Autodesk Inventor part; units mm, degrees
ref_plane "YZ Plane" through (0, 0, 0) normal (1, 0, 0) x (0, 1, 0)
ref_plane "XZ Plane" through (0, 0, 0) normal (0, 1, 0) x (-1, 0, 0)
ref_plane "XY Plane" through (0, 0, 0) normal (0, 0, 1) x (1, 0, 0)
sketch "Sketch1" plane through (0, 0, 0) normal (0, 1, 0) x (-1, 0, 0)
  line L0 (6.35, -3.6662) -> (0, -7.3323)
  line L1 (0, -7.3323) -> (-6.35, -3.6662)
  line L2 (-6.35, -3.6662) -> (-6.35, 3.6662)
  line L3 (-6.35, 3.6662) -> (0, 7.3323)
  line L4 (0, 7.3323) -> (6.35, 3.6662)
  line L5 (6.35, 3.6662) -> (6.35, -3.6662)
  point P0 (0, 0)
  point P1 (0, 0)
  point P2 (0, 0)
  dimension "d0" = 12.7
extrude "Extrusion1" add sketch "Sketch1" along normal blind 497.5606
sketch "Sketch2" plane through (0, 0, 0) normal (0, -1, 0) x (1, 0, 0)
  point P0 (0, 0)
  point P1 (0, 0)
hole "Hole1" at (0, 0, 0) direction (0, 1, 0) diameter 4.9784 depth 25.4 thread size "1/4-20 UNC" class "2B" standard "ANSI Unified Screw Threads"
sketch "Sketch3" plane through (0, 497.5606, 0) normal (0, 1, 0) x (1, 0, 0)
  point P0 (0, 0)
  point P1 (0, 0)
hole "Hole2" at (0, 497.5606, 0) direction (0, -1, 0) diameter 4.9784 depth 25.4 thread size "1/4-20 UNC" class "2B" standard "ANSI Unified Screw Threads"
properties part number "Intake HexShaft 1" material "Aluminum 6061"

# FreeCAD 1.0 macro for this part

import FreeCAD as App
import Part
import Sketcher

V = App.Vector
Q = App.Units.Quantity


def add_polygon(sketch, points):
    """Adds a closed chain of lines whose ends are joined by coincident constraints."""
    first, n = sketch.GeometryCount, len(points)
    for a, b in zip(points, points[1:] + points[:1]):
        sketch.addGeometry(Part.LineSegment(App.Vector(*a, 0), App.Vector(*b, 0)), False)
    for i in range(n):
        sketch.addConstraint(Sketcher.Constraint("Coincident", first + i, 2, first + (i + 1) % n, 1))

doc = App.newDocument("Part")
params = doc.addObject("Spreadsheet::Sheet", "Params")
for row, (alias, value) in enumerate([
    ("pad1_length", "19.589 in"),
    ("sketch2_diameter", "0.196 in"),
    ("hole_diameter", "0.196 in"),
    ("hole_depth", "1 in"),
    ("sketch3_diameter", "0.196 in"),
    ("hole2_diameter", "0.196 in"),
    ("hole2_depth", "1 in"),
], start=1):
    params.set(f"A{row}", alias)
    params.set(f"B{row}", "=" + value)
    params.setAlias(f"B{row}", alias)

body = doc.addObject("PartDesign::Body", "Body")

sketch1 = body.newObject("Sketcher::SketchObject", "Sketch")
sketch1.AttachmentSupport = (doc.getObject("XZ_Plane"), [""])
sketch1.MapMode = "FlatFace"
add_polygon(sketch1, [(0, -7), (-6, -4), (-6, 4), (0, 7), (6, 4), (6, -4)])
sketch1.addConstraint(Sketcher.Constraint("Vertical", 1))
sketch1.addConstraint(Sketcher.Constraint("Vertical", 4))
sketch1.addConstraint(Sketcher.Constraint("Symmetric", 0, 2, 3, 2, -1, 1))
sketch1.addConstraint(Sketcher.Constraint("Symmetric", 2, 2, 5, 2, -1, 1))
sketch1.addConstraint(Sketcher.Constraint("PointOnObject", 2, 2, -2))
sketch1.addConstraint(Sketcher.Constraint("Parallel", 2, 5))
sketch1.addConstraint(Sketcher.Constraint("Horizontal", 1, 2, 3, 2))
sketch1.addConstraint(Sketcher.Constraint("DistanceX", 1, 2, 3, 2, Q("0.5 in")))
sketch1.addConstraint(Sketcher.Constraint("Angle", 0, Q("150.0005 deg")))
sketch1.addConstraint(Sketcher.Constraint("DistanceY", 0, 2, 2, 2, Q("0.433 in")))
pad1 = body.newObject("PartDesign::Pad", "Pad")
pad1.Profile = sketch1
pad1.setExpression("Length", "Params.pad1_length")
pad1.Reversed = True

sketch2 = body.newObject("Sketcher::SketchObject", "Sketch001")
sketch2.AttachmentSupport = (doc.getObject("XZ_Plane"), [""])
sketch2.MapMode = "FlatFace"
sketch2.addGeometry(Part.Circle(V(0, 0, 0), V(0, 0, 1), 2.5), False)
sketch2.addConstraint(Sketcher.Constraint("Coincident", 0, 3, -1, 1))
sketch2.addConstraint(Sketcher.Constraint("Diameter", 0, Q("0.196 in")))
sketch2.setExpression("Constraints[1]", "Params.sketch2_diameter")
doc.recompute()
hole = body.newObject("PartDesign::Hole", "Hole")
hole.Profile = sketch2
hole.ThreadType = "None"
hole.setExpression("Diameter", "Params.hole_diameter")
hole.DepthType = "Dimension"
hole.setExpression("Depth", "Params.hole_depth")
hole.DrillPoint = "Flat"

sketch3 = body.newObject("Sketcher::SketchObject", "Sketch002")
sketch3.AttachmentSupport = (doc.getObject("XZ_Plane"), [""])
sketch3.MapMode = "FlatFace"
sketch3.AttachmentOffset = App.Placement(V(0, 0, -19.589 * 25.4), App.Rotation())
sketch3.addGeometry(Part.Circle(V(0, 0, 0), V(0, 0, 1), 2.5), False)
sketch3.addConstraint(Sketcher.Constraint("Coincident", 0, 3, -1, 1))
sketch3.addConstraint(Sketcher.Constraint("Diameter", 0, Q("0.196 in")))
sketch3.setExpression("Constraints[1]", "Params.sketch3_diameter")
doc.recompute()
hole2 = body.newObject("PartDesign::Hole", "Hole001")
hole2.Profile = sketch3
hole2.ThreadType = "None"
hole2.setExpression("Diameter", "Params.hole2_diameter")
hole2.DepthType = "Dimension"
hole2.setExpression("Depth", "Params.hole2_depth")
hole2.DrillPoint = "Flat"
hole2.Reversed = True

doc.recompute()
